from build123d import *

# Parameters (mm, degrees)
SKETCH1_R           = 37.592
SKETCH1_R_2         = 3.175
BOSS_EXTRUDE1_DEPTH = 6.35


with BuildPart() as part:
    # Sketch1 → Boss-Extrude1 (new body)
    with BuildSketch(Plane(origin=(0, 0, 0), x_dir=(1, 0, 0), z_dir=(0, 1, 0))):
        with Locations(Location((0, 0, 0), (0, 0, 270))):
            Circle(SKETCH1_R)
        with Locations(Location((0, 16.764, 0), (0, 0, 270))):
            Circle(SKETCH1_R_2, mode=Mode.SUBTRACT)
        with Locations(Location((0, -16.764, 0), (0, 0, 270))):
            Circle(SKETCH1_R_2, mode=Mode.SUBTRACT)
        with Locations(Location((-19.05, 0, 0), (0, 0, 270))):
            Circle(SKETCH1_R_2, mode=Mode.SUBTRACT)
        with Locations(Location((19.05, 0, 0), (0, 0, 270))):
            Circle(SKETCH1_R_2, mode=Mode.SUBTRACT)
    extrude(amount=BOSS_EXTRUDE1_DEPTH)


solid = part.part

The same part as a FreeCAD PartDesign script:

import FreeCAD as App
import Part
import Sketcher
Q = App.Units.Quantity

doc = App.newDocument("Part")
body = doc.addObject("PartDesign::Body", "Body")

# Sketch on XZ plane
sketch1 = doc.addObject("Sketcher::SketchObject", "Sketch")
body.addObject(sketch1)
sketch1.AttachmentSupport = (doc.XZ_Plane, [""])
sketch1.MapMode = "FlatFace"
sketch1.addGeometry([
    Part.Circle(App.Vector(0, 0, 0), App.Vector(0, 0, 1), 37.592),  # 0
    Part.Circle(App.Vector(0, -16.764, 0), App.Vector(0, 0, 1), 3.175),  # 1
    Part.Circle(App.Vector(-19.05, 0, 0), App.Vector(0, 0, 1), 3.175),  # 2
    Part.Circle(App.Vector(19.05, 0, 0), App.Vector(0, 0, 1), 3.175),  # 3
    Part.Circle(App.Vector(0, 16.764, 0), App.Vector(0, 0, 1), 3.175),  # 4
], False)
sketch1.addConstraint([
    Sketcher.Constraint("Coincident", 0, 3, -1, 1),
    Sketcher.Constraint("Equal", 1, 2),
    Sketcher.Constraint("Equal", 2, 3),
    Sketcher.Constraint("Equal", 3, 4),
    Sketcher.Constraint("Symmetric", 2, 3, 3, 3, -1, 1),
    Sketcher.Constraint("Symmetric", 1, 3, 4, 3, -1, 1),
    Sketcher.Constraint("PointOnObject", 1, 3, -2),
    Sketcher.Constraint("PointOnObject", 2, 3, -1),
    Sketcher.Constraint("Diameter", 0, Q("2.96 in")),
    Sketcher.Constraint("Diameter", 1, Q("0.25 in")),
    Sketcher.Constraint("DistanceX", 2, 3, 3, 3, Q("1.5 in")),
    Sketcher.Constraint("DistanceY", 1, 3, -1, 1, Q("0.66 in")),
])
pad1 = doc.addObject("PartDesign::Pad", "Pad")
body.addObject(pad1)
pad1.Profile = sketch1
pad1.Length = Q("0.25 in")
pad1.Reversed = True

doc.recompute()
